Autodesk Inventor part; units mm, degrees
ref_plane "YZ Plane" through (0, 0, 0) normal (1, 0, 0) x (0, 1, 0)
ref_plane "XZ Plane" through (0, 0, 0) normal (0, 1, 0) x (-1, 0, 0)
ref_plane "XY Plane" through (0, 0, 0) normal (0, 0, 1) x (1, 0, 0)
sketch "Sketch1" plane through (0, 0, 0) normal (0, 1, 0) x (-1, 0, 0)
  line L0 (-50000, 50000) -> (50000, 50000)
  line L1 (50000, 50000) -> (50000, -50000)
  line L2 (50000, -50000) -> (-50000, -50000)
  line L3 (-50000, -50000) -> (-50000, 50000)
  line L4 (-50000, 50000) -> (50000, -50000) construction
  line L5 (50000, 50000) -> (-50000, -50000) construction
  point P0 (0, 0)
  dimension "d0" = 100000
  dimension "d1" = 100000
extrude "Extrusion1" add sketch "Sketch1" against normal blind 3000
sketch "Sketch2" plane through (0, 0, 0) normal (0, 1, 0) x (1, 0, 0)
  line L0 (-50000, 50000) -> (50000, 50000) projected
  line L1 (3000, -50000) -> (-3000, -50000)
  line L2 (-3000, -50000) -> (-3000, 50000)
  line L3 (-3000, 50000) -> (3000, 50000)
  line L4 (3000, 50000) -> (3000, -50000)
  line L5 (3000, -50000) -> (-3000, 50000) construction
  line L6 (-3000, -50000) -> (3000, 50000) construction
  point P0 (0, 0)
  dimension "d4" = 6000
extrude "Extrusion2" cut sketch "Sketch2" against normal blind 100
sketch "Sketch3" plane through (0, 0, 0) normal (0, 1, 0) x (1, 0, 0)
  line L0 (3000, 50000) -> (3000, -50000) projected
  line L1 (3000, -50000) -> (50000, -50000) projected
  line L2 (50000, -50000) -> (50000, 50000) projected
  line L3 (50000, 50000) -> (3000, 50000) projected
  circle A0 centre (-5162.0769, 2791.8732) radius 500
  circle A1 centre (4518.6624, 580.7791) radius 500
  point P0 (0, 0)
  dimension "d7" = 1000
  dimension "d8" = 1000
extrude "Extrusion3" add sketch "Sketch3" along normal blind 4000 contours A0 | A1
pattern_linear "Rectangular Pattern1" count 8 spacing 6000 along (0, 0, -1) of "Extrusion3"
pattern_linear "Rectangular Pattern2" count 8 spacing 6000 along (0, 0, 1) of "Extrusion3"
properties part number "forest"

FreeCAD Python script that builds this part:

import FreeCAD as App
import Part
import Sketcher
Q = App.Units.Quantity


def add_polygon(sketch, points):
    """Adds a closed chain of lines whose ends are joined by coincident constraints."""
    first, n = sketch.GeometryCount, len(points)
    for a, b in zip(points, points[1:] + points[:1]):
        sketch.addGeometry(Part.LineSegment(App.Vector(*a, 0), App.Vector(*b, 0)), False)
    for i in range(n):
        sketch.addConstraint(Sketcher.Constraint("Coincident", first + i, 2, first + (i + 1) % n, 1))

doc = App.newDocument("Part")
body = doc.addObject("PartDesign::Body", "Body")

sketch1 = body.newObject("Sketcher::SketchObject", "Sketch")
sketch1.AttachmentSupport = (doc.getObject("XZ_Plane"), [""])
sketch1.MapMode = "FlatFace"
add_polygon(sketch1, [(-50000, 50000), (50000, 50000), (50000, -50000), (-50000, -50000)])
sketch1.addConstraint(Sketcher.Constraint("Horizontal", 0))
sketch1.addConstraint(Sketcher.Constraint("Vertical", 1))
sketch1.addConstraint(Sketcher.Constraint("Horizontal", 2))
sketch1.addConstraint(Sketcher.Constraint("Vertical", 3))
sketch1.addConstraint(Sketcher.Constraint("Symmetric", 0, 2, 2, 2, -1, 1))
sketch1.addConstraint(Sketcher.Constraint("Equal", 2, 1))
sketch1.addConstraint(Sketcher.Constraint("DistanceX", 0, 1, 0, 2, Q("100000 mm")))
pad1 = body.newObject("PartDesign::Pad", "Pad")
pad1.Profile = sketch1
pad1.Length = 3000

sketch2 = body.newObject("Sketcher::SketchObject", "Sketch001")
sketch2.AttachmentSupport = (doc.getObject("XZ_Plane"), [""])
sketch2.MapMode = "FlatFace"
add_polygon(sketch2, [(3000, -50000), (-3000, -50000), (-3000, 50000), (3000, 50000)])
sketch2.addConstraint(Sketcher.Constraint("Horizontal", 0))
sketch2.addConstraint(Sketcher.Constraint("Vertical", 1))
sketch2.addConstraint(Sketcher.Constraint("Horizontal", 2))
sketch2.addConstraint(Sketcher.Constraint("Vertical", 3))
sketch2.addConstraint(Sketcher.Constraint("Symmetric", 0, 2, 2, 2, -1, 1))
sketch2.addConstraint(Sketcher.Constraint("DistanceX", 0, 2, 0, 1, Q("6000 mm")))
sketch2.addConstraint(Sketcher.Constraint("DistanceY", 1, 1, 1, 2, Q("100000 mm")))
pocket1 = body.newObject("PartDesign::Pocket", "Pocket")
pocket1.Profile = sketch2
pocket1.Length = 100
pocket1.Reversed = True

sketch3 = body.newObject("Sketcher::SketchObject", "Sketch002")
sketch3.AttachmentSupport = (doc.getObject("XZ_Plane"), [""])
sketch3.MapMode = "FlatFace"
sketch3.addGeometry(Part.Circle(App.Vector(-5162, -2792, 0), App.Vector(0, 0, 1), 500), False)
sketch3.addGeometry(Part.Circle(App.Vector(4519, -581, 0), App.Vector(0, 0, 1), 500), False)
sketch3.addConstraint(Sketcher.Constraint("Equal", 0, 1))
sketch3.addConstraint(Sketcher.Constraint("Diameter", 0, Q("1000 mm")))
sketch3.addConstraint(Sketcher.Constraint("DistanceX", 0, 3, -1, 1, Q("5162.077 mm")))
sketch3.addConstraint(Sketcher.Constraint("DistanceY", 1, 3, -1, 1, Q("580.779 mm")))
sketch3.addConstraint(Sketcher.Constraint("DistanceY", 0, 3, 1, 3, Q("2211.094 mm")))
sketch3.addConstraint(Sketcher.Constraint("DistanceX", -1, 1, 1, 3, Q("4518.6624 mm")))
pad2 = body.newObject("PartDesign::Pad", "Pad001")
pad2.Profile = sketch3
pad2.Length = 4000
pad2.Reversed = True
doc.recompute()

linearpattern = body.newObject("PartDesign::LinearPattern", "LinearPattern")
linearpattern.Originals = [pad2]
linearpattern.Direction = (doc.getObject("Z_Axis"), [""])
linearpattern.Mode = "offset"
linearpattern.Offset = 6000
linearpattern.Occurrences = 8
linearpattern.Reversed = True
body.Tip = linearpattern
doc.recompute()

linearpattern2 = body.newObject("PartDesign::LinearPattern", "LinearPattern001")
linearpattern2.Originals = [pad2]
linearpattern2.Direction = (doc.getObject("Z_Axis"), [""])
linearpattern2.Mode = "offset"
linearpattern2.Offset = 6000
linearpattern2.Occurrences = 8
body.Tip = linearpattern2

doc.recompute()
